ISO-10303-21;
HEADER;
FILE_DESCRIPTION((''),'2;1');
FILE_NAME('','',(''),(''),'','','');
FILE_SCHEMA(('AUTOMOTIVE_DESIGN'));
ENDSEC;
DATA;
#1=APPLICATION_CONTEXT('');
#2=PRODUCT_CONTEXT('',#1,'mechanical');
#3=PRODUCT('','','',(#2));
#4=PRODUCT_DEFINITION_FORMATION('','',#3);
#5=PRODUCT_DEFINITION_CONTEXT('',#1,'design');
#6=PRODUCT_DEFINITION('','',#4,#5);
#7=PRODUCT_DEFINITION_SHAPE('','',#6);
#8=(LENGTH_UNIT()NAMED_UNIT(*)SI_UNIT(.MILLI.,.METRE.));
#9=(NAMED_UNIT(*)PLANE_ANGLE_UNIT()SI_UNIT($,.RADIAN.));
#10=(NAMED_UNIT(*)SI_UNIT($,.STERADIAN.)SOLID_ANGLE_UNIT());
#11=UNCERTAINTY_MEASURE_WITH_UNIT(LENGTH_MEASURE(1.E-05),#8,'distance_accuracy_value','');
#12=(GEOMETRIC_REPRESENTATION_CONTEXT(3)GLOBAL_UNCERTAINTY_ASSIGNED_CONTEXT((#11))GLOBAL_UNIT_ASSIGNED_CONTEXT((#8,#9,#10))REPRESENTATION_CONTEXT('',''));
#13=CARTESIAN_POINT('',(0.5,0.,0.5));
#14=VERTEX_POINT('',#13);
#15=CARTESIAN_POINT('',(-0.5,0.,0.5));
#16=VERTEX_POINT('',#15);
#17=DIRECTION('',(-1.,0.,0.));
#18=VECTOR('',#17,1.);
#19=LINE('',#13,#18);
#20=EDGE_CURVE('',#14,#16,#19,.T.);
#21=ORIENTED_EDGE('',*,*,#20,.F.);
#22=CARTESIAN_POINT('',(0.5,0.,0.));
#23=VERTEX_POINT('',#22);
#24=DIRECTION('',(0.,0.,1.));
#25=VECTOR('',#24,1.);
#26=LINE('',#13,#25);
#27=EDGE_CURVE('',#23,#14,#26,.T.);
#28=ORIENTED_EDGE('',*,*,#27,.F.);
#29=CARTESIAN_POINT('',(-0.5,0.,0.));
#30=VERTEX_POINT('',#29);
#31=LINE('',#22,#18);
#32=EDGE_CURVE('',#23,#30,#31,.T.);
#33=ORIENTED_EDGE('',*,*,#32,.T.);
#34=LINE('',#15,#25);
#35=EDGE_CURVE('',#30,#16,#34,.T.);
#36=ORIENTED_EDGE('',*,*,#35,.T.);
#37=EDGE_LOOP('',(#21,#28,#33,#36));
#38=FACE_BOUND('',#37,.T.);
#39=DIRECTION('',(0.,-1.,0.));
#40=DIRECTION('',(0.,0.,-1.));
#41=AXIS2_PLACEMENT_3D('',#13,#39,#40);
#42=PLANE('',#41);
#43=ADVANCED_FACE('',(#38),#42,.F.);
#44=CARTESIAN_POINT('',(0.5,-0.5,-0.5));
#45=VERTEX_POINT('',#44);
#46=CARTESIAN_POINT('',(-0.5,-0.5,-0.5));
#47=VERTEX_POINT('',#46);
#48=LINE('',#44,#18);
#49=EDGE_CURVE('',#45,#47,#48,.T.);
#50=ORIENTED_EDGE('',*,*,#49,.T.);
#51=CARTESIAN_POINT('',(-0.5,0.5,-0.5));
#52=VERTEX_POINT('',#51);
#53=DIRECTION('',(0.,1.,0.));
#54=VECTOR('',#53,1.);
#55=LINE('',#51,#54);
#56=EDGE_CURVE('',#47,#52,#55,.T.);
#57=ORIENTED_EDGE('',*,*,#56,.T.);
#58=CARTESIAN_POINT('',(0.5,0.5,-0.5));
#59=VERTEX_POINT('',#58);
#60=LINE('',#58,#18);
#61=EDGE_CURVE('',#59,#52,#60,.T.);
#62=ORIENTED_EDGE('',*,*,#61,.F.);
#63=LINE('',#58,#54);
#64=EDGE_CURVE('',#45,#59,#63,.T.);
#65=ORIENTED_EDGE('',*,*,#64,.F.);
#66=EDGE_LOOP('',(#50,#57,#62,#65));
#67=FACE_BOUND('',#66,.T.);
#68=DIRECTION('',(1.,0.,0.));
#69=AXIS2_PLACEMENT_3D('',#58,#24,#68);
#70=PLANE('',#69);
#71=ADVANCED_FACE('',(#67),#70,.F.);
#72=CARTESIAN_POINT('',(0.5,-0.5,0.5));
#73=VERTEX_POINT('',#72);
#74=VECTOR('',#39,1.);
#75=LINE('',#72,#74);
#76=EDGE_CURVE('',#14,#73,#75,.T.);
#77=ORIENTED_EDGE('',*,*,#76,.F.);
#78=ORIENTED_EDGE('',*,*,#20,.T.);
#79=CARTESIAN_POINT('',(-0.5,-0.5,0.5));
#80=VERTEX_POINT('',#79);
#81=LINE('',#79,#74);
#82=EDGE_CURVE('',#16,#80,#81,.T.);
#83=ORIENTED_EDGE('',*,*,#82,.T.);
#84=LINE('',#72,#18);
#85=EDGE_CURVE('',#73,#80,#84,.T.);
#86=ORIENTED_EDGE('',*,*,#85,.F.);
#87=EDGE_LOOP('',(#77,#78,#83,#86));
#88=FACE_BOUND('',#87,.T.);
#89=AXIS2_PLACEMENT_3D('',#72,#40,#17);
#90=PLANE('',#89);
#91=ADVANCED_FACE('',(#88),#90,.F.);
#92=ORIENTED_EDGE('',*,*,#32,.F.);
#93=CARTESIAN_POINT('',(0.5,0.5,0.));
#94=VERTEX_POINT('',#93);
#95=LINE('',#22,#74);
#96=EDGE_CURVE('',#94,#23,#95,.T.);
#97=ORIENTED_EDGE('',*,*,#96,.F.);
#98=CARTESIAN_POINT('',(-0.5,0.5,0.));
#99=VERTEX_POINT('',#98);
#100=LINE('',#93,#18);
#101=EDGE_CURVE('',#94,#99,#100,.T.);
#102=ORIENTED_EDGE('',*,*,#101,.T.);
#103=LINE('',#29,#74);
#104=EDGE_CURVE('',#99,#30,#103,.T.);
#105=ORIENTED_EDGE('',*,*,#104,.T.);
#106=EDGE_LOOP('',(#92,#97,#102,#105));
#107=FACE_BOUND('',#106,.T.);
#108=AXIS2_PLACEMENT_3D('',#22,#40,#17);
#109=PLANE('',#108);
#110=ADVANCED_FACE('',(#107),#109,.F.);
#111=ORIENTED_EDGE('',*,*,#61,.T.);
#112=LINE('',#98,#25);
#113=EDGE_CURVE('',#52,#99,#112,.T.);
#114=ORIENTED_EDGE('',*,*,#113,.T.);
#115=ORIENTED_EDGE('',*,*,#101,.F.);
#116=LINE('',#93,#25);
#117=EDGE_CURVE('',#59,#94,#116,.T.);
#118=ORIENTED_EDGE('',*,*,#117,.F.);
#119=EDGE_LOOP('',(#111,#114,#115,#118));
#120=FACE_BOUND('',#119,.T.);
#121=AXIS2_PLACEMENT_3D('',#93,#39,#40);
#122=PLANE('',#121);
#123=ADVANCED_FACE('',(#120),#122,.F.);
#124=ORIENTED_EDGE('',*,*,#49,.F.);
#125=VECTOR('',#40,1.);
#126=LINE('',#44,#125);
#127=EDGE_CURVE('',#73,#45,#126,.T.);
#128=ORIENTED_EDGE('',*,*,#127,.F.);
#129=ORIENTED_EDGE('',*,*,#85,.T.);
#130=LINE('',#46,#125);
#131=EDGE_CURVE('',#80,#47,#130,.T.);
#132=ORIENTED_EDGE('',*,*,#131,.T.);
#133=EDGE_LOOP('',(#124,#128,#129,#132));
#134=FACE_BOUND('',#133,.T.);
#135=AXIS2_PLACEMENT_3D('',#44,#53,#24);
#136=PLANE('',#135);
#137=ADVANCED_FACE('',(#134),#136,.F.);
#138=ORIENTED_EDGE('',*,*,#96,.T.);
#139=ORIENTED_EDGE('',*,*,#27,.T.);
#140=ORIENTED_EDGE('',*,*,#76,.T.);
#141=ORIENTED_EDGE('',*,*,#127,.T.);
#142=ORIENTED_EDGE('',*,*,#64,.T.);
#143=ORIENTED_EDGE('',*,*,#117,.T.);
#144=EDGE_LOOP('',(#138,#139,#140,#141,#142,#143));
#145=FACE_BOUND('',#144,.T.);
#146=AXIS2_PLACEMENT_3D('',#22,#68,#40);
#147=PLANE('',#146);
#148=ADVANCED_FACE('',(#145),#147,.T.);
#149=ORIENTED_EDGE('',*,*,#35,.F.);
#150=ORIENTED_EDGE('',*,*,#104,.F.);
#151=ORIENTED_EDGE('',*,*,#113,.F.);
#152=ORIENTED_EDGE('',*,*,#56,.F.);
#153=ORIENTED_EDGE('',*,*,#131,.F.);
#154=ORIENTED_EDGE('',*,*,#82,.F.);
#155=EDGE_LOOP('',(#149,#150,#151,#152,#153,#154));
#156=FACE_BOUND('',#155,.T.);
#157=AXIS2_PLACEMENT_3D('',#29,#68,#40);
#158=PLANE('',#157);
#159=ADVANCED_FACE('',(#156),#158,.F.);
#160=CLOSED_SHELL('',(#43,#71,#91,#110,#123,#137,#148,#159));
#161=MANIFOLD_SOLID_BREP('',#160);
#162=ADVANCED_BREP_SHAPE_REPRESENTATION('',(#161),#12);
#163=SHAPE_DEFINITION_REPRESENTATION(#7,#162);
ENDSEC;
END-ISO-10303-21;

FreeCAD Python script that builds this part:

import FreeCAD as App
import Part
import Sketcher
Q = App.Units.Quantity


def add_polygon(sketch, points):
    """Adds a closed chain of lines whose ends are joined by coincident constraints."""
    first, n = sketch.GeometryCount, len(points)
    for a, b in zip(points, points[1:] + points[:1]):
        sketch.addGeometry(Part.LineSegment(App.Vector(*a, 0), App.Vector(*b, 0)), False)
    for i in range(n):
        sketch.addConstraint(Sketcher.Constraint("Coincident", first + i, 2, first + (i + 1) % n, 1))

doc = App.newDocument("Part")
body = doc.addObject("PartDesign::Body", "Body")

# Sketch on YZ plane
sketch1 = body.newObject("Sketcher::SketchObject", "Sketch")
sketch1.AttachmentSupport = (doc.getObject("YZ_Plane"), [""])
sketch1.MapMode = "FlatFace"
add_polygon(sketch1, [(0.5, 0), (0, 0), (0, 0.5), (-0.5, 0.5), (-0.5, -0.5), (0.5, -0.5)])  # lines 0-5
sketch1.addConstraint([
    Sketcher.Constraint("Horizontal", 0),
    Sketcher.Constraint("Vertical", 1),
    Sketcher.Constraint("Horizontal", 2),
    Sketcher.Constraint("Vertical", 3),
    Sketcher.Constraint("Horizontal", 4),
    Sketcher.Constraint("Vertical", 5),
    Sketcher.Constraint("Coincident", 0, 2, -1, 1),
    Sketcher.Constraint("Symmetric", 2, 2, 4, 2, -1, 1),
    Sketcher.Constraint("Equal", 2, 1),
    Sketcher.Constraint("DistanceX", 4, 1, 4, 2, Q("1 mm")),
])
pad1 = body.newObject("PartDesign::Pad", "Pad")
pad1.Profile = sketch1
pad1.Length = 1
pad1.Midplane = True

doc.recompute()
